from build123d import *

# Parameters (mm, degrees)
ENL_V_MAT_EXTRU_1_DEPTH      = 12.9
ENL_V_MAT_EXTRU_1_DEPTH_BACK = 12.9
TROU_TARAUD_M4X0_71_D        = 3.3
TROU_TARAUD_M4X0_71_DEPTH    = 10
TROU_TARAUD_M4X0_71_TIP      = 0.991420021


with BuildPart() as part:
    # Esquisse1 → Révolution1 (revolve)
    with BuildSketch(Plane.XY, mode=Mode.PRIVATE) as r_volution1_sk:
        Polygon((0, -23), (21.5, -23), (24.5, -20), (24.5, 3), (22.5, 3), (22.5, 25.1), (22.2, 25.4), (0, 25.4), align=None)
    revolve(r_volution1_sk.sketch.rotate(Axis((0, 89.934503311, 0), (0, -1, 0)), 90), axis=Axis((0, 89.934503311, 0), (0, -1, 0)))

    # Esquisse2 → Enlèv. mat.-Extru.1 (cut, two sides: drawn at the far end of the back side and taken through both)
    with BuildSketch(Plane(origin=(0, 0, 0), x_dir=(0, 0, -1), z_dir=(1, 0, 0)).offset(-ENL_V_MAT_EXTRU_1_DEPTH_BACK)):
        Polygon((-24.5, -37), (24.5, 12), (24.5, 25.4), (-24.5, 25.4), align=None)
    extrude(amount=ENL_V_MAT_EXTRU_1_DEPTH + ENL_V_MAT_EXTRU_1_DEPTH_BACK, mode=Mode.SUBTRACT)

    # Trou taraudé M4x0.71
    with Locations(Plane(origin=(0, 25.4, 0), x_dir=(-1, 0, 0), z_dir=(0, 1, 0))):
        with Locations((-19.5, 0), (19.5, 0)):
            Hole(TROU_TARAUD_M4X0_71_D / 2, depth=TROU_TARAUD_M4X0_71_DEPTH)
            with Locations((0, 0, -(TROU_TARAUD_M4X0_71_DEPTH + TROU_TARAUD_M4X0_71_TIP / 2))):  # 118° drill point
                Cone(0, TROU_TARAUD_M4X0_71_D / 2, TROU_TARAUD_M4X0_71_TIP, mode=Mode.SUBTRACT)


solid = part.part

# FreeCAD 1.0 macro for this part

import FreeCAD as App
import Part
import Sketcher

V = App.Vector
Q = App.Units.Quantity


def add_polygon(sketch, points):
    """Adds a closed chain of lines whose ends are joined by coincident constraints."""
    first, n = sketch.GeometryCount, len(points)
    for a, b in zip(points, points[1:] + points[:1]):
        sketch.addGeometry(Part.LineSegment(App.Vector(*a, 0), App.Vector(*b, 0)), False)
    for i in range(n):
        sketch.addConstraint(Sketcher.Constraint("Coincident", first + i, 2, first + (i + 1) % n, 1))

doc = App.newDocument("Part")
body = doc.addObject("PartDesign::Body", "Body")

# Sketch on XY plane
sketch1 = body.newObject("Sketcher::SketchObject", "Sketch")
sketch1.AttachmentSupport = (doc.getObject("XY_Plane"), [""])
sketch1.MapMode = "FlatFace"
add_polygon(sketch1, [(0, -23), (21.5, -23), (24.5, -20), (24.5, 3), (22.5, 3), (22.5, 25.1), (22.2, 25.4), (0, 25.4)])  # lines 0-7
sketch1.addConstraint([
    Sketcher.Constraint("Horizontal", 0),
    Sketcher.Constraint("Vertical", 2),
    Sketcher.Constraint("Horizontal", 3),
    Sketcher.Constraint("Vertical", 4),
    Sketcher.Constraint("Horizontal", 6),
    Sketcher.Constraint("Vertical", 7),
    Sketcher.Constraint("PointOnObject", 6, 2, -2),
    Sketcher.Constraint("Perpendicular", 1, 5),
    Sketcher.Constraint("DistanceX", 3, 2, 3, 1, 2.0),
    Sketcher.Constraint("DistanceY", 2, 1, 2, 2, 23.0),
    Sketcher.Constraint("Angle", 1, Q("45 deg")),
    Sketcher.Constraint("DistanceX", 0, 1, 0, 2, 21.5),
    Sketcher.Constraint("DistanceX", 6, 2, 6, 1, 22.2),
    Sketcher.Constraint("DistanceY", 4, 1, 4, 2, 22.1),
    Sketcher.Constraint("DistanceY", 7, 2, 7, 1, 48.4),
    Sketcher.Constraint("DistanceY", 0, 2, -1, 1, 23.0),
])
revolution = body.newObject("PartDesign::Revolution", "Revolution")
revolution.Profile = sketch1
revolution.ReferenceAxis = (sketch1, ["V_Axis"])
revolution.Angle = 360

# Sketch on YZ plane
sketch2 = body.newObject("Sketcher::SketchObject", "Sketch001")
sketch2.AttachmentSupport = (doc.getObject("YZ_Plane"), [""])
sketch2.MapMode = "FlatFace"
add_polygon(sketch2, [(-37, 24), (12, -24), (25, -24), (25, 24)])  # lines 0-3
sketch2.addConstraint([
    Sketcher.Constraint("Horizontal", 1),
    Sketcher.Constraint("Vertical", 2),
    Sketcher.Constraint("Horizontal", 3),
    Sketcher.Constraint("DistanceY", 2, 1, 2, 2, 49.0),
    Sketcher.Constraint("Angle", 0, Q("-45 deg")),
    Sketcher.Constraint("DistanceX", 1, 1, 1, 2, 13.4),
    Sketcher.Constraint("DistanceX", -1, 1, 0, 2, 12.0),
    Sketcher.Constraint("DistanceY", 0, 2, -1, 1, 24.5),
])
pocket1 = body.newObject("PartDesign::Pocket", "Pocket")
pocket1.Profile = sketch2
pocket1.Type = "TwoLengths"
pocket1.Length = 12.9
pocket1.Length2 = 12.9
pocket1.Reversed = True

# Sketch on XZ plane
sketch3 = body.newObject("Sketcher::SketchObject", "Sketch002")
sketch3.AttachmentSupport = (doc.getObject("XZ_Plane"), [""])
sketch3.MapMode = "FlatFace"
sketch3.AttachmentOffset = App.Placement(V(0, 0, -25.4), App.Rotation())
sketch3.addGeometry([
    Part.Circle(V(19.5, 0, 0), V(0, 0, 1), 1.6),
    Part.Circle(V(-19.5, 0, 0), V(0, 0, 1), 1.6),
], False)
sketch3.addConstraint([
    Sketcher.Constraint("Equal", 0, 1),
    Sketcher.Constraint("Symmetric", 0, 3, 1, 3, -1, 1),
    Sketcher.Constraint("PointOnObject", 0, 3, -1),
    Sketcher.Constraint("Diameter", 0, 3.3),
    Sketcher.Constraint("DistanceX", 1, 3, 0, 3, 39.0),
])
doc.recompute()
hole = body.newObject("PartDesign::Hole", "Hole")
hole.Profile = sketch3
hole.ThreadType = "None"
hole.Diameter = 3.3
hole.DepthType = "Dimension"
hole.Depth = 10
hole.DrillPoint = "Angled"
hole.DrillPointAngle = 118
hole.Reversed = True

doc.recompute()
